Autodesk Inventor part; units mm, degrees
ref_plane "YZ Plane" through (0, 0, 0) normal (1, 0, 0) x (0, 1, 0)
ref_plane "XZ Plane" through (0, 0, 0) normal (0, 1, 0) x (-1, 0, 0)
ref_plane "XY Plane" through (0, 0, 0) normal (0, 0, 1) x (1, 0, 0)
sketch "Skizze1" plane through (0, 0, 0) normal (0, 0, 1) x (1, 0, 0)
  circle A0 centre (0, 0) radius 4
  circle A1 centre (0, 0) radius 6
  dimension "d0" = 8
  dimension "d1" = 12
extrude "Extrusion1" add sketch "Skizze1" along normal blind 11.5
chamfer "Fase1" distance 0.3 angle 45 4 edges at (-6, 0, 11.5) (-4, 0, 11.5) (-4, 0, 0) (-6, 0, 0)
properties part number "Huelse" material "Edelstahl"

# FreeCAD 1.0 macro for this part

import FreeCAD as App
import Part
import Sketcher
Q = App.Units.Quantity


def edges_at(feature, points):
    """Names of the edges that pass closest to the given points."""
    edges = feature.Shape.Edges
    near = lambda p: min(range(len(edges)), key=lambda i: edges[i].distToShape(Part.Vertex(*p))[0])
    return sorted({f"Edge{near(p) + 1}" for p in points})

doc = App.newDocument("Part")
body = doc.addObject("PartDesign::Body", "Body")

# Sketch on XY plane
sketch1 = body.newObject("Sketcher::SketchObject", "Sketch")
sketch1.AttachmentSupport = (doc.getObject("XY_Plane"), [""])
sketch1.MapMode = "FlatFace"
sketch1.addGeometry(Part.Circle(App.Vector(0, 0, 0), App.Vector(0, 0, 1), 6), False)
sketch1.addGeometry(Part.Circle(App.Vector(0, 0, 0), App.Vector(0, 0, 1), 4), False)
sketch1.addConstraint(Sketcher.Constraint("Coincident", 0, 3, -1, 1))
sketch1.addConstraint(Sketcher.Constraint("Coincident", 1, 3, -1, 1))
sketch1.addConstraint(Sketcher.Constraint("Diameter", 0, Q("12 mm")))
sketch1.addConstraint(Sketcher.Constraint("Diameter", 1, Q("8 mm")))
pad1 = body.newObject("PartDesign::Pad", "Pad")
pad1.Profile = sketch1
pad1.Length = 11.5
doc.recompute()

chamfer = body.newObject("PartDesign::Chamfer", "Chamfer")
chamfer.Base = (pad1, edges_at(pad1, [
    (-6, 0, 11.5),
    (-4, 0, 11.5),
    (-4, 0, 0),
    (-6, 0, 0),
]))
chamfer.Size = 0.3

doc.recompute()
